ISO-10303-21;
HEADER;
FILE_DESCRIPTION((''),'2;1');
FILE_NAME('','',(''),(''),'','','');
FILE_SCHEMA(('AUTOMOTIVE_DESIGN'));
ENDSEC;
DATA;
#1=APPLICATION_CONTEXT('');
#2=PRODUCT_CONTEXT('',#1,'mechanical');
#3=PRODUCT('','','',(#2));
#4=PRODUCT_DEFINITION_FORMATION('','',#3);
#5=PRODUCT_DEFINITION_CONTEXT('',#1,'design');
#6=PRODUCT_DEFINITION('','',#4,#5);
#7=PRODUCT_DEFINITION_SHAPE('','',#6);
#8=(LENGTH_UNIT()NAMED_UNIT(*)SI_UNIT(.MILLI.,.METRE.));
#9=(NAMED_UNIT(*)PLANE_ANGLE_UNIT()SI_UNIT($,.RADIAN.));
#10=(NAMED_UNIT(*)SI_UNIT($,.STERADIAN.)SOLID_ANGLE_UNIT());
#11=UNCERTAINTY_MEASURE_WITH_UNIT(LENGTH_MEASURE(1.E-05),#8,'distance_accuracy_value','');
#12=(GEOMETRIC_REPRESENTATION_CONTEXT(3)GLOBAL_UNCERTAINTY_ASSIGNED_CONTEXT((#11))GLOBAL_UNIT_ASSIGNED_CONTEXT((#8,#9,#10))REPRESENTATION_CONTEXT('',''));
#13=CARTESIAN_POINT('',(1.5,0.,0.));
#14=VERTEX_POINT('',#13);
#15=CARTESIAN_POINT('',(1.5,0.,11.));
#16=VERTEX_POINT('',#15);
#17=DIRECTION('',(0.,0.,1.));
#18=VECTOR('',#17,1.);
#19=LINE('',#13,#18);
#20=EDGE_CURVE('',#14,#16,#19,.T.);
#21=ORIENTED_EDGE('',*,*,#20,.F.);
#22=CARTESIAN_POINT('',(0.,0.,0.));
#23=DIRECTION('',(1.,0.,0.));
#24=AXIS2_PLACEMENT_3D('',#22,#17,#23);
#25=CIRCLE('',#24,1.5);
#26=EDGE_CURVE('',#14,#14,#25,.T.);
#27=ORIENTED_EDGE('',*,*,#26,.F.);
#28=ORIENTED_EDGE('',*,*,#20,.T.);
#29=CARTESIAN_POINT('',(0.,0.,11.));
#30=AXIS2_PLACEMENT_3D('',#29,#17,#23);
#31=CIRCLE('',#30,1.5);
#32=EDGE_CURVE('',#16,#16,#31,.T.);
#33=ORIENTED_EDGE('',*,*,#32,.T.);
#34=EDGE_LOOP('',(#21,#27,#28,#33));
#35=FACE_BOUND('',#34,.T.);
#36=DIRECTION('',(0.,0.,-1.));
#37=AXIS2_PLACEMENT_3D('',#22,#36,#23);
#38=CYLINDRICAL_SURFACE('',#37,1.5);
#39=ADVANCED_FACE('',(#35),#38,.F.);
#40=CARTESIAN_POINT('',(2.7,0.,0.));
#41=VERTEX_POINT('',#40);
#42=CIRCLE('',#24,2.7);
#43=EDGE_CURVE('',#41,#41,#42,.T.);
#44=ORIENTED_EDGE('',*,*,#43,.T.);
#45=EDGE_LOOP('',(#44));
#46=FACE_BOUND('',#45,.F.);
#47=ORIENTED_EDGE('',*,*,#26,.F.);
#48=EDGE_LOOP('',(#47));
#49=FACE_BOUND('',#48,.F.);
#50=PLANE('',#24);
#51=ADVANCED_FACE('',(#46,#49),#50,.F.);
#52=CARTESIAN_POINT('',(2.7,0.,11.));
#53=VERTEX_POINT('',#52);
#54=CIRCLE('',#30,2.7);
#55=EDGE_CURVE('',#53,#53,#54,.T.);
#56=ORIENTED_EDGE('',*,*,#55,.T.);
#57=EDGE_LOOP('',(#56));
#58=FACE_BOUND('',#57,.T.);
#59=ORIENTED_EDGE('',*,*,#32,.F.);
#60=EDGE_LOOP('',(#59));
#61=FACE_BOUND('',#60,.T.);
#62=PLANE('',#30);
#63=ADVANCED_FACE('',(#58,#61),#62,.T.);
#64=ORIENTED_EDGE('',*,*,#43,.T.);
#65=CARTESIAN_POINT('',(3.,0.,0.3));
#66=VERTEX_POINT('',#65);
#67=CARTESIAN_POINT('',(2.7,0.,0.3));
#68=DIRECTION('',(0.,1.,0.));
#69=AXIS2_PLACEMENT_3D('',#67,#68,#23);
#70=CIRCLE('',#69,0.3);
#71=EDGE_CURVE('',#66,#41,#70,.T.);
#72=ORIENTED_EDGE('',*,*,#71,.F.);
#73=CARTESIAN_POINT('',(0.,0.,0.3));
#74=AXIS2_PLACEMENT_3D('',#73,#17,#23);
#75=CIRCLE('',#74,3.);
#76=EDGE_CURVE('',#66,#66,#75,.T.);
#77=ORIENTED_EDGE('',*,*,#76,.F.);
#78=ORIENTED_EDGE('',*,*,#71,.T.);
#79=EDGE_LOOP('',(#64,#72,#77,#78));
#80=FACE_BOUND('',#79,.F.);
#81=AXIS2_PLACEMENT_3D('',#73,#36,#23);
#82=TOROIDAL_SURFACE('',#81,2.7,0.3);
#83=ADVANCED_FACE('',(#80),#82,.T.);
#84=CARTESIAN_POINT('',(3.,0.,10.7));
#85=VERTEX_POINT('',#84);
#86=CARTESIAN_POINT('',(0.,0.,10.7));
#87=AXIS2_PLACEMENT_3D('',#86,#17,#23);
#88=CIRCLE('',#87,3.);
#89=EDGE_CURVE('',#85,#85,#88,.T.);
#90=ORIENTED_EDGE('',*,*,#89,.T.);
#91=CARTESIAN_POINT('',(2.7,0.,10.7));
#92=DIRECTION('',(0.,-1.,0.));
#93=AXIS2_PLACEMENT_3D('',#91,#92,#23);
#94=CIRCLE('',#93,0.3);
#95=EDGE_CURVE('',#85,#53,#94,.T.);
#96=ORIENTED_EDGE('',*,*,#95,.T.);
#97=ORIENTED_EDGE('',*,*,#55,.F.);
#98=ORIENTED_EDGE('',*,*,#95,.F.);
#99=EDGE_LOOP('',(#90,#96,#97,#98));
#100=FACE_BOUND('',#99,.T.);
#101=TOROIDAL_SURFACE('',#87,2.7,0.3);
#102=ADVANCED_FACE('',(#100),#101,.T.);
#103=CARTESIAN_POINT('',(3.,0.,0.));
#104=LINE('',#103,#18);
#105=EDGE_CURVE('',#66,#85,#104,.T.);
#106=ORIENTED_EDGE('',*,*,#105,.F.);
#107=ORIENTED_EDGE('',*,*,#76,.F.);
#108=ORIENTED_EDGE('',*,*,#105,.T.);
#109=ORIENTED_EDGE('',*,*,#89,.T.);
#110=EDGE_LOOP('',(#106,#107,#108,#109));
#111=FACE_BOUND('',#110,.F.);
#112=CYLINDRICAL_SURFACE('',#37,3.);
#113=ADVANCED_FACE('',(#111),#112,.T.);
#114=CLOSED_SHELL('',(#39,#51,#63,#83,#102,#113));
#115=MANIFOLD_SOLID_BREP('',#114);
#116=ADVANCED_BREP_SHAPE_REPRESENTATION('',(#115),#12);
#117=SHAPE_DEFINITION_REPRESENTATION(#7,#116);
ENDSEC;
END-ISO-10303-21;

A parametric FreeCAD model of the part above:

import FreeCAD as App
import Part
import Sketcher
from FreeCAD import Vector


def edges_at(feature, points):
    """Names of the edges that pass closest to the given points."""
    edges = feature.Shape.Edges
    near = lambda p: min(range(len(edges)), key=lambda i: edges[i].distToShape(Part.Vertex(*p))[0])
    return sorted({f"Edge{near(p) + 1}" for p in points})

doc = App.newDocument("Part")
params = doc.addObject("Spreadsheet::Sheet", "Params")
for row, (alias, value) in enumerate([
    ("sketch1_diameter", "6 mm"),
    ("sketch1_diameter2", "3 mm"),
    ("pad1_length", "11 mm"),
    ("fillet_radius", "0.3 mm"),
], start=1):
    params.set(f"A{row}", alias)
    params.set(f"B{row}", "=" + value)
    params.setAlias(f"B{row}", alias)

body = doc.addObject("PartDesign::Body", "Body")

# Sketch on XY plane
sketch1 = doc.addObject("Sketcher::SketchObject", "Sketch")
body.addObject(sketch1)
sketch1.AttachmentSupport = (doc.XY_Plane, [""])
sketch1.MapMode = "FlatFace"
sketch1.addGeometry([
    Part.Circle(Vector(0, 0, 0), Vector(0, 0, 1), 3),
    Part.Circle(Vector(0, 0, 0), Vector(0, 0, 1), 1.5),
], False)
sketch1.addConstraint([
    Sketcher.Constraint("Coincident", 0, 3, -1, 1),
    Sketcher.Constraint("Coincident", 1, 3, -1, 1),
    Sketcher.Constraint("Diameter", 0, 6.0),
    Sketcher.Constraint("Diameter", 1, 3.0),
])
sketch1.setExpression("Constraints[2]", "Params.sketch1_diameter")
sketch1.setExpression("Constraints[3]", "Params.sketch1_diameter2")
pad1 = doc.addObject("PartDesign::Pad", "Pad")
body.addObject(pad1)
pad1.Profile = sketch1
pad1.setExpression("Length", "Params.pad1_length")
doc.recompute()

fillet = doc.addObject("PartDesign::Fillet", "Fillet")
body.addObject(fillet)
fillet.Base = (pad1, edges_at(pad1, [(-3, 0, 11), (-3, 0, 0)]))
fillet.setExpression("Radius", "Params.fillet_radius")

doc.recompute()
